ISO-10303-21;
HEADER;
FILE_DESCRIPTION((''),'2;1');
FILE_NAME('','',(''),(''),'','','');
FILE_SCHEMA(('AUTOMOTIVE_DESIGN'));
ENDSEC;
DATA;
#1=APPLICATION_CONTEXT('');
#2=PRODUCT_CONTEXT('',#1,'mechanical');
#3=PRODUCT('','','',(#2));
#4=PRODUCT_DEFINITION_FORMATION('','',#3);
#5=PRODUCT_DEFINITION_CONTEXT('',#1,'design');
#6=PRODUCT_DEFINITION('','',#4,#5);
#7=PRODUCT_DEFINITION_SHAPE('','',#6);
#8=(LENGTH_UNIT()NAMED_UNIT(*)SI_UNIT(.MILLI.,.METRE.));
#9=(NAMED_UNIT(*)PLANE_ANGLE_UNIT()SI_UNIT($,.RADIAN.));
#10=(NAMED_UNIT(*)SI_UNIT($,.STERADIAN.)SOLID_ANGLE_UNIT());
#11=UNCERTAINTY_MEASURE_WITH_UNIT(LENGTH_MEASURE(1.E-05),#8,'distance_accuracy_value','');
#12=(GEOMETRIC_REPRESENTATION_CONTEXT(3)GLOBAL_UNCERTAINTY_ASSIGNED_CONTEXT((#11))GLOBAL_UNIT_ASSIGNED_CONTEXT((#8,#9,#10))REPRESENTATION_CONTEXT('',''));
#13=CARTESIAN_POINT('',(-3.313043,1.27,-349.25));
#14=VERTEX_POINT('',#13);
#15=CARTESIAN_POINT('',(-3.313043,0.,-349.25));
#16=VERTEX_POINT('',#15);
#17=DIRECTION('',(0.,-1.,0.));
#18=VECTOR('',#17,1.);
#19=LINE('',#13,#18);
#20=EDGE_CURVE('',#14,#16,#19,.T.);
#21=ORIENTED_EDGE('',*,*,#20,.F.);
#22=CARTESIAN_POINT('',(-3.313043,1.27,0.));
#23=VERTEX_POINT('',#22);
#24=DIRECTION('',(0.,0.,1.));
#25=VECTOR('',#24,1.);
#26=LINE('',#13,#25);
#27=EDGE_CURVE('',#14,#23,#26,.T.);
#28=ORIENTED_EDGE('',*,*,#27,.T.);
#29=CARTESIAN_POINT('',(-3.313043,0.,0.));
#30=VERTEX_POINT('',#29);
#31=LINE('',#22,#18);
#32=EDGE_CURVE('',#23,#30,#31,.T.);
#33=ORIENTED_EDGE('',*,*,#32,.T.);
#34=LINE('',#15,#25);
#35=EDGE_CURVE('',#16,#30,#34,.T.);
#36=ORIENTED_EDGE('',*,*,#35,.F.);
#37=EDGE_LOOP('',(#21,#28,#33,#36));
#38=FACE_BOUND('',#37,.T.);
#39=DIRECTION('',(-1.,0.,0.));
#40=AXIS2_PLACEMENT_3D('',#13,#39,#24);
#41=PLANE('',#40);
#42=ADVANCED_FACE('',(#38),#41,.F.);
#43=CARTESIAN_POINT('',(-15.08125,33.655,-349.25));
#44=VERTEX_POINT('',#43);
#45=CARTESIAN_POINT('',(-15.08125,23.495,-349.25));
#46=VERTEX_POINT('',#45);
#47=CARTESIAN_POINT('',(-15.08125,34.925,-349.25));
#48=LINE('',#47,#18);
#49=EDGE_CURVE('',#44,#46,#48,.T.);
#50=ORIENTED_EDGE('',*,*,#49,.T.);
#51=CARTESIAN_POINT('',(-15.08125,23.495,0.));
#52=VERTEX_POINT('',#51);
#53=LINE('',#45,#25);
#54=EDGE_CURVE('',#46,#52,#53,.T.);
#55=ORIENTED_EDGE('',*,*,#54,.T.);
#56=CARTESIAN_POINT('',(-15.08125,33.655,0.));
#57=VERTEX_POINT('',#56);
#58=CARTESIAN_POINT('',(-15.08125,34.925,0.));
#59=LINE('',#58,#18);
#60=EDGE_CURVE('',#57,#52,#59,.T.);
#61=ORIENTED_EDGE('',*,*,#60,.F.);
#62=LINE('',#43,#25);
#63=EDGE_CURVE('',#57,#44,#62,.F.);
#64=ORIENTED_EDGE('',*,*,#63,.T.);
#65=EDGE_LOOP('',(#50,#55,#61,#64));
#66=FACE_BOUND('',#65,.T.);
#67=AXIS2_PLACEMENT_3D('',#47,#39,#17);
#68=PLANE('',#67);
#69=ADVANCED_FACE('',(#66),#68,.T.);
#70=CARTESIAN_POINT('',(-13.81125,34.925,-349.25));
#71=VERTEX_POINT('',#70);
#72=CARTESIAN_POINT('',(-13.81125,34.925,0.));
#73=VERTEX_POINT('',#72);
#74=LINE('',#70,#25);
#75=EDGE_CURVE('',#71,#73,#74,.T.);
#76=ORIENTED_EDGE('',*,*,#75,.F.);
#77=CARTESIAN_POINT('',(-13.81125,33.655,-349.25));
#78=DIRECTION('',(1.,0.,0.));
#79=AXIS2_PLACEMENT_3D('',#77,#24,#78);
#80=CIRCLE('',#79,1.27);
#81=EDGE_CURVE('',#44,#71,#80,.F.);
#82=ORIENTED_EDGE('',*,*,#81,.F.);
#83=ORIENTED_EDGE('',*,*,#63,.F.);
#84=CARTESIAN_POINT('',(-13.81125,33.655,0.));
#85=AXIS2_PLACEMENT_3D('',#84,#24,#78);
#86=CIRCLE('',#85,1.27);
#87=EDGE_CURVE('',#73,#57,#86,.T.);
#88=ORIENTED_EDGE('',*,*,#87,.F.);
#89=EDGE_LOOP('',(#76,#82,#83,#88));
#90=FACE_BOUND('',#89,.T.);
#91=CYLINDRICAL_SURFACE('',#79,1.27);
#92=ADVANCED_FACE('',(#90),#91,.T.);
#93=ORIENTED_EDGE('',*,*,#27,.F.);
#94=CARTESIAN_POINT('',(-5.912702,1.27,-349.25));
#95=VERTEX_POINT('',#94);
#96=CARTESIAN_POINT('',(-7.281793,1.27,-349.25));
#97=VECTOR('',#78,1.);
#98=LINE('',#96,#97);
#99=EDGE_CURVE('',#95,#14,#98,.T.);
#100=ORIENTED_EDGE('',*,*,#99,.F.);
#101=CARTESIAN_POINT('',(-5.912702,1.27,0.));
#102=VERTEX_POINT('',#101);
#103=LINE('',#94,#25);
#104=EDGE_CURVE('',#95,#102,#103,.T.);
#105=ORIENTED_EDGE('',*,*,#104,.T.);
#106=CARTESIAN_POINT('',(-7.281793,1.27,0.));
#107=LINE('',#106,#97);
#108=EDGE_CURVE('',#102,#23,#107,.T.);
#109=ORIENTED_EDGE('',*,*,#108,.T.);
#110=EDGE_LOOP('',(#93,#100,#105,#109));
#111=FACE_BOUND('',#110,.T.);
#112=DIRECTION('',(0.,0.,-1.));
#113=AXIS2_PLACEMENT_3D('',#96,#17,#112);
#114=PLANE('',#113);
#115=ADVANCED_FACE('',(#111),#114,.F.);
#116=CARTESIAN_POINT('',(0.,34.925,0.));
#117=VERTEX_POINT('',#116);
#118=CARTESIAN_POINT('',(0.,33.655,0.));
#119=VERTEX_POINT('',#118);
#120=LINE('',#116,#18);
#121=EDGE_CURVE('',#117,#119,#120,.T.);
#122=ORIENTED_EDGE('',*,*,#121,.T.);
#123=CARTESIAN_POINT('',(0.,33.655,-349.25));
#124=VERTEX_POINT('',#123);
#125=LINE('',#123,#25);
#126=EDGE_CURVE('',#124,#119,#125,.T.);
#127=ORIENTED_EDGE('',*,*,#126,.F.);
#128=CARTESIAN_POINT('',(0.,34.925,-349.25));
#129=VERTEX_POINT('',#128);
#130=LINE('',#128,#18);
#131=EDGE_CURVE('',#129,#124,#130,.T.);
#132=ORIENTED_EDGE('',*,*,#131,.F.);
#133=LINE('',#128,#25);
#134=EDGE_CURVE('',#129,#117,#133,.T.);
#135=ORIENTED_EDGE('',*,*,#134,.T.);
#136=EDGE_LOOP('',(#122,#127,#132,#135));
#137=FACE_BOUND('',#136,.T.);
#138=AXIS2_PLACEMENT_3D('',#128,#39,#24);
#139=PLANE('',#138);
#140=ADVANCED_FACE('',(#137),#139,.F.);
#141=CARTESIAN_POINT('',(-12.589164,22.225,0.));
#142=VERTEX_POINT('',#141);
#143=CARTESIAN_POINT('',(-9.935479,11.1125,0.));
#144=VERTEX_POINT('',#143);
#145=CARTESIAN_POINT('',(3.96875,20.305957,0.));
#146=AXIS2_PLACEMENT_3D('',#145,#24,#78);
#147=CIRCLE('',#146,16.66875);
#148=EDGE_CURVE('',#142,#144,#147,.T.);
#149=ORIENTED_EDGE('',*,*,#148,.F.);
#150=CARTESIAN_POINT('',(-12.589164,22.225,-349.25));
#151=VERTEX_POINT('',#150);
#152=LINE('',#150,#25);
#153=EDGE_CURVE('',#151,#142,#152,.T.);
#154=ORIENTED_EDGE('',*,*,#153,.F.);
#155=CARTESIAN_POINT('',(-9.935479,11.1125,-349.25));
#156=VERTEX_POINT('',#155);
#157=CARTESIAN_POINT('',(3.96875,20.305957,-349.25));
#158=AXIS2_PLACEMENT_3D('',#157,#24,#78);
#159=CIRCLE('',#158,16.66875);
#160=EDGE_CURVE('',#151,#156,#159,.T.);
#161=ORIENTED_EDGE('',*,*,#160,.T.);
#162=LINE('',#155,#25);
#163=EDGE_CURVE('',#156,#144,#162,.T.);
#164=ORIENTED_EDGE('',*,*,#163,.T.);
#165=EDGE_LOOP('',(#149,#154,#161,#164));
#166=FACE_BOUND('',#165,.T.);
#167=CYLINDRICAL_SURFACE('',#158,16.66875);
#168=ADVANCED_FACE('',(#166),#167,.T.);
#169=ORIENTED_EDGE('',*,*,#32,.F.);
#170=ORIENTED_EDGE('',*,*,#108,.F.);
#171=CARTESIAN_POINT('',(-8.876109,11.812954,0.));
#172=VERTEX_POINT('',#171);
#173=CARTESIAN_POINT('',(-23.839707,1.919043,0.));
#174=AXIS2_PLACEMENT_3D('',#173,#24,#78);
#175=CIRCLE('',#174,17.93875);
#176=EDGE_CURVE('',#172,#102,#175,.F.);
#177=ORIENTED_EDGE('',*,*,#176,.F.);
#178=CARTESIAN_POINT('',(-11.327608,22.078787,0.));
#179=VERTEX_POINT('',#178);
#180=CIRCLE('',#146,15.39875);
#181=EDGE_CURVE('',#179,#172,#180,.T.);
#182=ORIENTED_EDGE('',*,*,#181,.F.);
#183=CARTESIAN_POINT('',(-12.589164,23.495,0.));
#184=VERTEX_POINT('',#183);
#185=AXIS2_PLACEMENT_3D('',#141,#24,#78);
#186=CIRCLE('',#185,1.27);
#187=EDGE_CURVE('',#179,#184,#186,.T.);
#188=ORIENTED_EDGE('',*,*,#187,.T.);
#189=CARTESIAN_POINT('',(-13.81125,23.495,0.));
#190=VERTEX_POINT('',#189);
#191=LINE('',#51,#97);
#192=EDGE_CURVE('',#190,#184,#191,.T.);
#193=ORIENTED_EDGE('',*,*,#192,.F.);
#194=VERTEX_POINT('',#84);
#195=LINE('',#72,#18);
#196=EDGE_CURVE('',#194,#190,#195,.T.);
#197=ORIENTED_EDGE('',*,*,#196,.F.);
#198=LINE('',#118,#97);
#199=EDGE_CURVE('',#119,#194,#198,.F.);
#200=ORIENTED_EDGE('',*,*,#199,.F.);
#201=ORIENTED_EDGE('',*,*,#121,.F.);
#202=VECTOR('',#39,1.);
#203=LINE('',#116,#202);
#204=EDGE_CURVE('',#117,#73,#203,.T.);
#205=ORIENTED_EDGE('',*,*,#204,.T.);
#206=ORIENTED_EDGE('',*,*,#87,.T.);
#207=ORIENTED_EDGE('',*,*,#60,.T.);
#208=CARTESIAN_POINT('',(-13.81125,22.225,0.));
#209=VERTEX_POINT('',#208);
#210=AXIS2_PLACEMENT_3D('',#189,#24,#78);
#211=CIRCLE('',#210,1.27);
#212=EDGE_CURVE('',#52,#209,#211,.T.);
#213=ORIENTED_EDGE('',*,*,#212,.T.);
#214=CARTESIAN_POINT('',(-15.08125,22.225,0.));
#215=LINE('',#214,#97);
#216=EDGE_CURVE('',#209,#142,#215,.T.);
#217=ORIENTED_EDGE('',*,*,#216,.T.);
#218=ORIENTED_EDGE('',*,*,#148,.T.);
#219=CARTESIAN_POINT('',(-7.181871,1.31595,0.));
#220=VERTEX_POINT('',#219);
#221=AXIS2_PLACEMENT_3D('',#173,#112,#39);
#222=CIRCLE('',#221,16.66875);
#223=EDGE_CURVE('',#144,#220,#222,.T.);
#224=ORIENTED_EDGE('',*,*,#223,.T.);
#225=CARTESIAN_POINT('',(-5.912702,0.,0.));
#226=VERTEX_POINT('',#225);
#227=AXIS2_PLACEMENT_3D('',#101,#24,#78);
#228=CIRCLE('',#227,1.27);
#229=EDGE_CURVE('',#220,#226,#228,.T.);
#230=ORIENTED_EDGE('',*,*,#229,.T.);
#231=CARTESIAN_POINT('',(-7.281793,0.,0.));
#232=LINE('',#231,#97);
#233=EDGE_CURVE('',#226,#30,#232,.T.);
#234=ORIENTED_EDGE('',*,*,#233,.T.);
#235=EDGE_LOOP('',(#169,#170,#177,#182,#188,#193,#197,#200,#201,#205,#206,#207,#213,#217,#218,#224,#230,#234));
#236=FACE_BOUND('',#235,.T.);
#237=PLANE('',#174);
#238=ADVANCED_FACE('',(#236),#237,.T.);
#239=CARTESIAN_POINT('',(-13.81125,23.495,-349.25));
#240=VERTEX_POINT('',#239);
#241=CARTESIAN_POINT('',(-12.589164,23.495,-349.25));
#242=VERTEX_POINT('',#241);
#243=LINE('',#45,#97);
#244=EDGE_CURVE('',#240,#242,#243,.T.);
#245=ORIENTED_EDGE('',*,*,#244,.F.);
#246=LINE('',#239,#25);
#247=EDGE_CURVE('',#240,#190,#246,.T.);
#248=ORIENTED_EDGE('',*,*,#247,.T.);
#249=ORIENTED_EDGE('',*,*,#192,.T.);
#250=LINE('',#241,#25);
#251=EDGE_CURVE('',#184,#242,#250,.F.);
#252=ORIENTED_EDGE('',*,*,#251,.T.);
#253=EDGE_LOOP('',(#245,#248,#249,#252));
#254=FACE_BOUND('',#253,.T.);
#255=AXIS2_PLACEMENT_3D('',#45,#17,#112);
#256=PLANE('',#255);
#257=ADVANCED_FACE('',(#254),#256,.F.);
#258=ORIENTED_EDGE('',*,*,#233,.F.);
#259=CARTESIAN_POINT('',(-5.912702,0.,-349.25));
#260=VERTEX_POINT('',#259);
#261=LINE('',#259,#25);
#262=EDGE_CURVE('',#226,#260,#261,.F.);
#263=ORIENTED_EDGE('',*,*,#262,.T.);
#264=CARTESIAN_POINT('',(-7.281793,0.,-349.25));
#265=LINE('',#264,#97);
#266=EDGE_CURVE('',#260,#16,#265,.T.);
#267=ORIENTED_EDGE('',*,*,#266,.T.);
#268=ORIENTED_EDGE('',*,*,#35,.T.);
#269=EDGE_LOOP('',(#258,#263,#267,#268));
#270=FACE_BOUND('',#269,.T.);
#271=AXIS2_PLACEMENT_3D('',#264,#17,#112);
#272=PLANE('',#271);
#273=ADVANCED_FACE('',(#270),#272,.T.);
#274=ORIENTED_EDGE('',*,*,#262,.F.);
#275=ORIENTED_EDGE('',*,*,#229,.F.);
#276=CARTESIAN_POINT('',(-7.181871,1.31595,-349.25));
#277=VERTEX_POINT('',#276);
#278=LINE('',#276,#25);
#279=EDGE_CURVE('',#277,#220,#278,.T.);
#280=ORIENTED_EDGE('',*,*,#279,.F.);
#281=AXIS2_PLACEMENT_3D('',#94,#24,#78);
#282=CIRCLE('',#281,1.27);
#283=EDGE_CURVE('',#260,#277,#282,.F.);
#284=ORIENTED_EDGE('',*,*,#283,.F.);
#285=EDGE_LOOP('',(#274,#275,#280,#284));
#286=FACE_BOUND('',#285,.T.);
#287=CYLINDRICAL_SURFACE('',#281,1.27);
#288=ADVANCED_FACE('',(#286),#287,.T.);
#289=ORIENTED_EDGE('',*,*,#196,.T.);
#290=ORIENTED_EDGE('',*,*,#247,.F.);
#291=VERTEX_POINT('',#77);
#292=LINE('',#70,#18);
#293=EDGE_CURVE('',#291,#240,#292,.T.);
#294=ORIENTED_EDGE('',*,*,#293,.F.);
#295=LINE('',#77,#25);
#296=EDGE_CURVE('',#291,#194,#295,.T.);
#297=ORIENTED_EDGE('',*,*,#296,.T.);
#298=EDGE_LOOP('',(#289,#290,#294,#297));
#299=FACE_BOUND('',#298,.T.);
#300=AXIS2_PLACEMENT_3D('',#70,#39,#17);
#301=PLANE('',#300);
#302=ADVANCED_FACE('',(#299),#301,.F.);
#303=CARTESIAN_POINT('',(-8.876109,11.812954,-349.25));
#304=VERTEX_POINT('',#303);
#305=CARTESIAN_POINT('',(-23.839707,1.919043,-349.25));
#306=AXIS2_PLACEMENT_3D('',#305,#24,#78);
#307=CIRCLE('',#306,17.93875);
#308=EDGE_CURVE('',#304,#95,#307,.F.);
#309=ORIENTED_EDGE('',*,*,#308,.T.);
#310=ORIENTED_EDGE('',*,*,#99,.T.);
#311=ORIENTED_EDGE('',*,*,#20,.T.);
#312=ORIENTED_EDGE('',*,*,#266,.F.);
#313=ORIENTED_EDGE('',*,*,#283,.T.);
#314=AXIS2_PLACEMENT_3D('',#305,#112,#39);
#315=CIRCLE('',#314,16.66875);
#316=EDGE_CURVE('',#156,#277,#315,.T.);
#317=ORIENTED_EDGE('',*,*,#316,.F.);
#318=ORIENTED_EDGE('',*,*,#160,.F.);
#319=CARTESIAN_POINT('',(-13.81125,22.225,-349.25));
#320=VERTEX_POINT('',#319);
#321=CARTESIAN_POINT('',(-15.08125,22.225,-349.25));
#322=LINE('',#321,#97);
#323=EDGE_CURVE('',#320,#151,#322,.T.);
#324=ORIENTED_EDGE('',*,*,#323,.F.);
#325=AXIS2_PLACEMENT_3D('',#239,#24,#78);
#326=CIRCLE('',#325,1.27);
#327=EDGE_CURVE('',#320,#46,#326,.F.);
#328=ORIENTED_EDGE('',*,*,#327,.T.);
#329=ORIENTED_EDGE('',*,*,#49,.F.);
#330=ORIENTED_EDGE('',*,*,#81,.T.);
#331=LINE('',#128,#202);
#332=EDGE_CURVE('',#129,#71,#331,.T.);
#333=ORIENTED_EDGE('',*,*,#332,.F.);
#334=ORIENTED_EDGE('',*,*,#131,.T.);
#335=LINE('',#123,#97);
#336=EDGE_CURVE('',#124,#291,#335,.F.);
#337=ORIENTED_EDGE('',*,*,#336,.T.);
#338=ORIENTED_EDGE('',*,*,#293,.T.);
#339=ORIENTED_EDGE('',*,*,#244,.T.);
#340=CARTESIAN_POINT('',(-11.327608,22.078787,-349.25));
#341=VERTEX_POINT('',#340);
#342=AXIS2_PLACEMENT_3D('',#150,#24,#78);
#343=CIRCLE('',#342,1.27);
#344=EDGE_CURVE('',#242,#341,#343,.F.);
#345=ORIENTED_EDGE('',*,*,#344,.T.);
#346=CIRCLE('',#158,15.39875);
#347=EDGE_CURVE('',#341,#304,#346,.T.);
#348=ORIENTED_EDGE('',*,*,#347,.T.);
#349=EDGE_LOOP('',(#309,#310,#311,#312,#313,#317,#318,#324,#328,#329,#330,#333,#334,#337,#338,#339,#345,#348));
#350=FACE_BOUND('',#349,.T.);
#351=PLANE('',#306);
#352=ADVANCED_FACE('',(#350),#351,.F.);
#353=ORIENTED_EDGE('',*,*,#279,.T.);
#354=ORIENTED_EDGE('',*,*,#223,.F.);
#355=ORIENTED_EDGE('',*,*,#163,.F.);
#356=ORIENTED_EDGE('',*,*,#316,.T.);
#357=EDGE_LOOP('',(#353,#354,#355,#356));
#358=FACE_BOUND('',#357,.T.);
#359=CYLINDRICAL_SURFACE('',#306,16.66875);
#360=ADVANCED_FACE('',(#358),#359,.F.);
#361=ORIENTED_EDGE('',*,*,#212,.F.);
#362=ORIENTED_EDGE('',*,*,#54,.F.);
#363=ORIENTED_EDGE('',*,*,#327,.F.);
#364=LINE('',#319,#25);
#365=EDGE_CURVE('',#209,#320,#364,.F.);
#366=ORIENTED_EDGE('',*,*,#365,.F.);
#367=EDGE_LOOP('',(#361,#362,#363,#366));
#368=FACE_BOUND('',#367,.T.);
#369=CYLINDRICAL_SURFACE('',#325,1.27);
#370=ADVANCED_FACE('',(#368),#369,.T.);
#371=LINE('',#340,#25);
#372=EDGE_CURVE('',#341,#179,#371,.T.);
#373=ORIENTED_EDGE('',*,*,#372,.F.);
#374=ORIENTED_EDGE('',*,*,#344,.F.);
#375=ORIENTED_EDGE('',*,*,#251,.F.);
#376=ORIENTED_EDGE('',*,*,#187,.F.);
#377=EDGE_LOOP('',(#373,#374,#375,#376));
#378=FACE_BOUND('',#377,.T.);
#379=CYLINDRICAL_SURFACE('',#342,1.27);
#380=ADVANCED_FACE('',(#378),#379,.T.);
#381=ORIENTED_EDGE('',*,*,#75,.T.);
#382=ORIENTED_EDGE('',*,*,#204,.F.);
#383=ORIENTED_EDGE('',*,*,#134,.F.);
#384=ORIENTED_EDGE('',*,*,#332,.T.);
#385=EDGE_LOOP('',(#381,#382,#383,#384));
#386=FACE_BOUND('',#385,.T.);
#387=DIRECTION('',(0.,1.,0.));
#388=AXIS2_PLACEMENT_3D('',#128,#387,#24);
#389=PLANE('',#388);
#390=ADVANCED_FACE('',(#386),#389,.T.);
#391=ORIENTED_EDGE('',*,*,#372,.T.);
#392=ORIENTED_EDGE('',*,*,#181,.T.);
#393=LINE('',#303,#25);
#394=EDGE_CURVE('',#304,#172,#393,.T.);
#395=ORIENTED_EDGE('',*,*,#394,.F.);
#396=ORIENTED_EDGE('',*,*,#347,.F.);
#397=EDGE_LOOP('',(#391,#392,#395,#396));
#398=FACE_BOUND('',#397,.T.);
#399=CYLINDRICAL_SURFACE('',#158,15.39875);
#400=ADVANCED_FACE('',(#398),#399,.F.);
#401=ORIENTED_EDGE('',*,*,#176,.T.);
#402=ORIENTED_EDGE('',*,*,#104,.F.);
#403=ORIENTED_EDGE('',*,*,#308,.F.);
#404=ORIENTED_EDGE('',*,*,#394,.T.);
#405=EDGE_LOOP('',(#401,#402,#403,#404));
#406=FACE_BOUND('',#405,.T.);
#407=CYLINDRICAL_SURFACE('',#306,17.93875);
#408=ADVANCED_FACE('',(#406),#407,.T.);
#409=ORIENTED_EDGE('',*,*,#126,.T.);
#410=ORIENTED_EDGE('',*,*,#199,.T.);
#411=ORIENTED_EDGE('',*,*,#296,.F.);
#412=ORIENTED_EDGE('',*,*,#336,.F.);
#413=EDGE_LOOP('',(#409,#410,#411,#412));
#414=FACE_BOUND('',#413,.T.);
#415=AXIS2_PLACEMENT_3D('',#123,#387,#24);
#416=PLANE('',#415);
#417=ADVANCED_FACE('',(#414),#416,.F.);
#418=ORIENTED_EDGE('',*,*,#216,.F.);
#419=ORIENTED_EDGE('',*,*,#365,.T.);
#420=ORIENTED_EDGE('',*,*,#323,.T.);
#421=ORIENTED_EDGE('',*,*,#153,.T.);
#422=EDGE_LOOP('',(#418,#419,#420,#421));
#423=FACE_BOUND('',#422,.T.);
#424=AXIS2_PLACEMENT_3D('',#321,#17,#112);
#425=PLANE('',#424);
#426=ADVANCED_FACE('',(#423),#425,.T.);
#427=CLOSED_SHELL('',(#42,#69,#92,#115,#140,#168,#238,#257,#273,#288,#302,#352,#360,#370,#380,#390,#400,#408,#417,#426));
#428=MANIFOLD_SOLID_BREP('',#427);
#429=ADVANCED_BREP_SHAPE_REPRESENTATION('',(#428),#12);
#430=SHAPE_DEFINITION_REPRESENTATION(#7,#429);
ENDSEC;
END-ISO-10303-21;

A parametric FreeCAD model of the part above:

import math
import FreeCAD as App
import Part
import Sketcher

V = App.Vector
Q = App.Units.Quantity


def edges_at(feature, points):
    """Names of the edges that pass closest to the given points."""
    edges = feature.Shape.Edges
    near = lambda p: min(range(len(edges)), key=lambda i: edges[i].distToShape(Part.Vertex(*p))[0])
    return sorted({f"Edge{near(p) + 1}" for p in points})

doc = App.newDocument("Part")
body = doc.addObject("PartDesign::Body", "Body")

sketch1 = body.newObject("Sketcher::SketchObject", "Sketch")
sketch1.AttachmentSupport = (doc.getObject("XY_Plane"), [""])
sketch1.MapMode = "FlatFace"
sketch1.addGeometry([
    Part.LineSegment(V(0, 34.925, 0), V(-15.08125, 34.925, 0)),
    Part.LineSegment(V(-15.08125, 34.925, 0), V(-15.08125, 22.225, 0)),
    Part.LineSegment(V(-15.08125, 22.225, 0), V(-12.589164, 22.225, 0)),
    Part.ArcOfCircle(Part.Circle(V(3.96875, 20.305957, 0), V(0, 0, 1), 16.66875), math.radians(173.388982), math.radians(213.472624)),
    Part.ArcOfCircle(Part.Circle(V(-23.839707, 1.919043, 0), V(0, 0, 1), 16.66875), math.radians(-6.611018), math.radians(33.472624)),
    Part.LineSegment(V(-7.281793, 0, 0), V(-3.313043, 0, 0)),
    Part.LineSegment(V(-3.313043, 0, 0), V(-3.313043, 1.27, 0)),
    Part.LineSegment(V(-3.313043, 1.27, 0), V(-5.912702, 1.27, 0)),
    Part.ArcOfCircle(Part.Circle(V(-23.839707, 1.919043, 0), V(0, 0, 1), 17.93875), math.radians(-2.073474), math.radians(33.472624)),
    Part.ArcOfCircle(Part.Circle(V(3.96875, 20.305957, 0), V(0, 0, 1), 15.39875), math.radians(168.047687), math.radians(213.472624)),
    Part.LineSegment(V(-11.09616, 23.495, 0), V(-13.81125, 23.495, 0)),
    Part.LineSegment(V(-13.81125, 23.495, 0), V(-13.81125, 33.655, 0)),
    Part.LineSegment(V(-13.81125, 33.655, 0), V(0, 33.655, 0)),
    Part.LineSegment(V(0, 33.655, 0), V(0, 34.925, 0)),
], False)
sketch1.addConstraint([
    Sketcher.Constraint("Coincident", 0, 2, 1, 1),
    Sketcher.Constraint("Coincident", 1, 2, 2, 1),
    Sketcher.Constraint("Coincident", 2, 2, 3, 1),
    Sketcher.Constraint("Tangent", 3, 2, 4, 2),
    Sketcher.Constraint("Coincident", 4, 1, 5, 1),
    Sketcher.Constraint("Coincident", 5, 2, 6, 1),
    Sketcher.Constraint("Coincident", 6, 2, 7, 1),
    Sketcher.Constraint("Coincident", 7, 2, 8, 1),
    Sketcher.Constraint("Tangent", 8, 2, 9, 2),
    Sketcher.Constraint("Coincident", 9, 1, 10, 1),
    Sketcher.Constraint("Coincident", 10, 2, 11, 1),
    Sketcher.Constraint("Coincident", 11, 2, 12, 1),
    Sketcher.Constraint("Coincident", 12, 2, 13, 1),
    Sketcher.Constraint("Coincident", 13, 2, 0, 1),
    Sketcher.Constraint("Horizontal", 0),
    Sketcher.Constraint("Vertical", 1),
    Sketcher.Constraint("Horizontal", 2),
    Sketcher.Constraint("Horizontal", 5),
    Sketcher.Constraint("Vertical", 6),
    Sketcher.Constraint("Horizontal", 7),
    Sketcher.Constraint("Horizontal", 10),
    Sketcher.Constraint("Vertical", 11),
    Sketcher.Constraint("Horizontal", 12),
    Sketcher.Constraint("Vertical", 13),
    Sketcher.Constraint("Coincident", 8, 3, 4, 3),
    Sketcher.Constraint("Coincident", 9, 3, 3, 3),
    Sketcher.Constraint("Equal", 3, 4),
    Sketcher.Constraint("PointOnObject", 4, 1, -1),
    Sketcher.Constraint("PointOnObject", 12, 2, -2),
    Sketcher.Constraint("Equal", 6, 13),
    Sketcher.Constraint("DistanceY", 1, 2, 1, 1, Q("0.5 in")),
    Sketcher.Constraint("DistanceY", 11, 1, 11, 2, Q("0.4 in")),
    Sketcher.Constraint("Radius", 3, Q("0.65625 in")),
    Sketcher.Constraint("DistanceY", 6, 1, 6, 2, Q("0.05 in")),
    Sketcher.Constraint("DistanceX", 0, 2, 0, 1, Q("0.59375 in")),
    Sketcher.Constraint("DistanceX", 5, 1, 5, 2, Q("0.15625 in")),
    Sketcher.Constraint("DistanceX", 0, 2, 3, 3, Q("0.75 in")),
    Sketcher.Constraint("DistanceX", 1, 2, 10, 2, Q("0.05 in")),
    Sketcher.Constraint("DistanceY", -1, 1, 0, 2, Q("1.375 in")),
    Sketcher.Constraint("DistanceY", -1, 1, 3, 2, Q("0.4375 in")),
    Sketcher.Constraint("Radius", 8, Q("17.93875 mm")),
    Sketcher.Constraint("DistanceX", 7, 2, 7, 1, Q("2.599659 mm")),
])
pad1 = body.newObject("PartDesign::Pad", "Pad")
pad1.Profile = sketch1
pad1.Length = Q("13.75 in")
pad1.Reversed = True
doc.recompute()

fillet = body.newObject("PartDesign::Fillet", "Fillet")
fillet.Base = (pad1, edges_at(pad1, [
    (-7.282, 0, -174.625),
    (-15.081, 22.225, -174.625),
    (-15.081, 34.925, -174.625),
    (-11.096, 23.495, -174.625),
]))
fillet.Radius = Q("0.05 in")

doc.recompute()
